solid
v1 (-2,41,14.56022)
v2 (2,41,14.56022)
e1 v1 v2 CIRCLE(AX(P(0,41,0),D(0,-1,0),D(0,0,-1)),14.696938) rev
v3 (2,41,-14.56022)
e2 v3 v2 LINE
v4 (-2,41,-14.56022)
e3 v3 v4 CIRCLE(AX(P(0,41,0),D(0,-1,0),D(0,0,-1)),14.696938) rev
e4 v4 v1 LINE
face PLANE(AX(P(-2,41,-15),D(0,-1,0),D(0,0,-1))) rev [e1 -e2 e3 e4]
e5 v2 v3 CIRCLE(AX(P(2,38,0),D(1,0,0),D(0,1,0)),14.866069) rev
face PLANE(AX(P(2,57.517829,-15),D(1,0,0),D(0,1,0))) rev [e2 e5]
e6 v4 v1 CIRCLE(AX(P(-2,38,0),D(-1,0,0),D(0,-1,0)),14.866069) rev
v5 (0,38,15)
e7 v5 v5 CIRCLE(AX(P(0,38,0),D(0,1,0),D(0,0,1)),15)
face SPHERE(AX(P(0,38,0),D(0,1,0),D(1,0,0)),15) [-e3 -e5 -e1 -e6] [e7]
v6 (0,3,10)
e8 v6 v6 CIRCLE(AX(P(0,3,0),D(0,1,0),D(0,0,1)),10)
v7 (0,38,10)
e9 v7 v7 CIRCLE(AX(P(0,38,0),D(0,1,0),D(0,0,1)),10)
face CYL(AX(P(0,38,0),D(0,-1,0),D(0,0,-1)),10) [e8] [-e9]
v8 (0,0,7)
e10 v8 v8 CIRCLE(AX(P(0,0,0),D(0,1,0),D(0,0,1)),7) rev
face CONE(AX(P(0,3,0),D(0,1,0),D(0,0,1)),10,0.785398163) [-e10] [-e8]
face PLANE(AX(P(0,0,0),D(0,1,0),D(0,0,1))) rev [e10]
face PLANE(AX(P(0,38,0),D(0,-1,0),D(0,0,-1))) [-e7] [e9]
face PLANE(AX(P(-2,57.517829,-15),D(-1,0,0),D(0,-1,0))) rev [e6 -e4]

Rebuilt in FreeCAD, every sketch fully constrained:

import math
import FreeCAD as App
import Part
import Sketcher
Q = App.Units.Quantity


def edges_at(feature, points):
    """Names of the edges that pass closest to the given points."""
    edges = feature.Shape.Edges
    near = lambda p: min(range(len(edges)), key=lambda i: edges[i].distToShape(Part.Vertex(*p))[0])
    return sorted({f"Edge{near(p) + 1}" for p in points})


def add_polygon(sketch, points):
    """Adds a closed chain of lines whose ends are joined by coincident constraints."""
    first, n = sketch.GeometryCount, len(points)
    for a, b in zip(points, points[1:] + points[:1]):
        sketch.addGeometry(Part.LineSegment(App.Vector(*a, 0), App.Vector(*b, 0)), False)
    for i in range(n):
        sketch.addConstraint(Sketcher.Constraint("Coincident", first + i, 2, first + (i + 1) % n, 1))

doc = App.newDocument("Part")
body = doc.addObject("PartDesign::Body", "Body")

sketch1 = body.newObject("Sketcher::SketchObject", "Sketch")
sketch1.AttachmentSupport = (doc.getObject("XZ_Plane"), [""])
sketch1.MapMode = "FlatFace"
sketch1.addGeometry(Part.Circle(App.Vector(0, 0, 0), App.Vector(0, 0, 1), 10), False)
sketch1.addConstraint([
    Sketcher.Constraint("Coincident", 0, 3, -1, 1),
    Sketcher.Constraint("Diameter", 0, Q("20 mm")),
])
pad1 = body.newObject("PartDesign::Pad", "Pad")
pad1.Profile = sketch1
pad1.Length = 38
pad1.Reversed = True

sketch2 = body.newObject("Sketcher::SketchObject", "Sketch001")
sketch2.AttachmentSupport = (doc.getObject("XY_Plane"), [""])
sketch2.MapMode = "FlatFace"
sketch2.addGeometry([
    Part.LineSegment(App.Vector(0, 38, 0), App.Vector(0, 53, 0)),
    Part.ArcOfCircle(Part.Circle(App.Vector(0, 38, 0), App.Vector(0, 0, 1), 15), math.radians(90), math.radians(180)),
    Part.LineSegment(App.Vector(-15, 38, 0), App.Vector(0, 38, 0)),
], False)
sketch2.addConstraint([
    Sketcher.Constraint("Coincident", 0, 2, 1, 1),
    Sketcher.Constraint("Coincident", 1, 2, 2, 1),
    Sketcher.Constraint("Coincident", 2, 2, 0, 1),
    Sketcher.Constraint("Vertical", 0),
    Sketcher.Constraint("Horizontal", 2),
    Sketcher.Constraint("Coincident", 2, 2, 1, 3),
    Sketcher.Constraint("PointOnObject", 1, 3, -2),
    Sketcher.Constraint("Radius", 1, Q("15 mm")),
    Sketcher.Constraint("DistanceY", -1, 1, 1, 3, Q("38 mm")),
])
revolution = body.newObject("PartDesign::Revolution", "Revolution")
revolution.Profile = sketch2
revolution.ReferenceAxis = (sketch2, ["V_Axis"])
revolution.Angle = 360

sketch3 = body.newObject("Sketcher::SketchObject", "Sketch002")
sketch3.AttachmentSupport = (doc.getObject("XY_Plane"), [""])
sketch3.MapMode = "FlatFace"
add_polygon(sketch3, [(-2, 57.517829), (-2, 41), (2, 41), (2, 57.517829)])
sketch3.addConstraint([
    Sketcher.Constraint("Vertical", 0),
    Sketcher.Constraint("Horizontal", 1),
    Sketcher.Constraint("Vertical", 2),
    Sketcher.Constraint("Horizontal", 3),
    Sketcher.Constraint("DistanceX", 1, 1, 1, 2, Q("4 mm")),
    Sketcher.Constraint("DistanceX", 0, 2, -1, 1, Q("2 mm")),
    Sketcher.Constraint("DistanceY", -1, 1, 0, 2, Q("41 mm")),
    Sketcher.Constraint("DistanceY", 0, 2, 0, 1, Q("16.517829 mm")),
])
pocket1 = body.newObject("PartDesign::Pocket", "Pocket")
pocket1.Profile = sketch3
pocket1.Type = "ThroughAll"
pocket1.Midplane = True
doc.recompute()

chamfer = body.newObject("PartDesign::Chamfer", "Chamfer")
chamfer.Base = (pocket1, edges_at(pocket1, [(-10, 0, 0)]))
chamfer.Size = 3

doc.recompute()
